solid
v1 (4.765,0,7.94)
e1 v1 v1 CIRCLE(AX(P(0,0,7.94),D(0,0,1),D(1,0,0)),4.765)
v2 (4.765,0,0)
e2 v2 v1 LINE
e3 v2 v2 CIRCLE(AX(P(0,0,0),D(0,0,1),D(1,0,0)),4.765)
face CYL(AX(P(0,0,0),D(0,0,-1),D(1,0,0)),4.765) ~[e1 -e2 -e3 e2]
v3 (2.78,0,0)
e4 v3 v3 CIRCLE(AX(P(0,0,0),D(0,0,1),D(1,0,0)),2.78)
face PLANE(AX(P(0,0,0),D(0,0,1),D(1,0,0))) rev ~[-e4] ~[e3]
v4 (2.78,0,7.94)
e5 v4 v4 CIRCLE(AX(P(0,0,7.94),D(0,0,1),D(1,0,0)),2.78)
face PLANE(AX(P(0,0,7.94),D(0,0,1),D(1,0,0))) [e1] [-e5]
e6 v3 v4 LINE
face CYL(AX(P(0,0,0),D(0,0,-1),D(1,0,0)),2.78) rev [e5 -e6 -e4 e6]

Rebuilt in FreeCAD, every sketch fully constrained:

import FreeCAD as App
import Part
import Sketcher

doc = App.newDocument("Part")
body = doc.addObject("PartDesign::Body", "Body")

# Sketch on XY plane
sketch1 = body.newObject("Sketcher::SketchObject", "Sketch")
sketch1.AttachmentSupport = (doc.getObject("XY_Plane"), [""])
sketch1.MapMode = "FlatFace"
sketch1.addGeometry(Part.Circle(App.Vector(0, 0, 0), App.Vector(0, 0, 1), 4.765), False)
sketch1.addGeometry(Part.Circle(App.Vector(0, 0, 0), App.Vector(0, 0, 1), 2.78), False)
sketch1.addConstraint(Sketcher.Constraint("Coincident", 0, 3, -1, 1))
sketch1.addConstraint(Sketcher.Constraint("Coincident", 1, 3, -1, 1))
sketch1.addConstraint(Sketcher.Constraint("Diameter", 0, 9.53))
sketch1.addConstraint(Sketcher.Constraint("Diameter", 1, 5.56))
pad1 = body.newObject("PartDesign::Pad", "Pad")
pad1.Profile = sketch1
pad1.Length = 7.94

doc.recompute()
